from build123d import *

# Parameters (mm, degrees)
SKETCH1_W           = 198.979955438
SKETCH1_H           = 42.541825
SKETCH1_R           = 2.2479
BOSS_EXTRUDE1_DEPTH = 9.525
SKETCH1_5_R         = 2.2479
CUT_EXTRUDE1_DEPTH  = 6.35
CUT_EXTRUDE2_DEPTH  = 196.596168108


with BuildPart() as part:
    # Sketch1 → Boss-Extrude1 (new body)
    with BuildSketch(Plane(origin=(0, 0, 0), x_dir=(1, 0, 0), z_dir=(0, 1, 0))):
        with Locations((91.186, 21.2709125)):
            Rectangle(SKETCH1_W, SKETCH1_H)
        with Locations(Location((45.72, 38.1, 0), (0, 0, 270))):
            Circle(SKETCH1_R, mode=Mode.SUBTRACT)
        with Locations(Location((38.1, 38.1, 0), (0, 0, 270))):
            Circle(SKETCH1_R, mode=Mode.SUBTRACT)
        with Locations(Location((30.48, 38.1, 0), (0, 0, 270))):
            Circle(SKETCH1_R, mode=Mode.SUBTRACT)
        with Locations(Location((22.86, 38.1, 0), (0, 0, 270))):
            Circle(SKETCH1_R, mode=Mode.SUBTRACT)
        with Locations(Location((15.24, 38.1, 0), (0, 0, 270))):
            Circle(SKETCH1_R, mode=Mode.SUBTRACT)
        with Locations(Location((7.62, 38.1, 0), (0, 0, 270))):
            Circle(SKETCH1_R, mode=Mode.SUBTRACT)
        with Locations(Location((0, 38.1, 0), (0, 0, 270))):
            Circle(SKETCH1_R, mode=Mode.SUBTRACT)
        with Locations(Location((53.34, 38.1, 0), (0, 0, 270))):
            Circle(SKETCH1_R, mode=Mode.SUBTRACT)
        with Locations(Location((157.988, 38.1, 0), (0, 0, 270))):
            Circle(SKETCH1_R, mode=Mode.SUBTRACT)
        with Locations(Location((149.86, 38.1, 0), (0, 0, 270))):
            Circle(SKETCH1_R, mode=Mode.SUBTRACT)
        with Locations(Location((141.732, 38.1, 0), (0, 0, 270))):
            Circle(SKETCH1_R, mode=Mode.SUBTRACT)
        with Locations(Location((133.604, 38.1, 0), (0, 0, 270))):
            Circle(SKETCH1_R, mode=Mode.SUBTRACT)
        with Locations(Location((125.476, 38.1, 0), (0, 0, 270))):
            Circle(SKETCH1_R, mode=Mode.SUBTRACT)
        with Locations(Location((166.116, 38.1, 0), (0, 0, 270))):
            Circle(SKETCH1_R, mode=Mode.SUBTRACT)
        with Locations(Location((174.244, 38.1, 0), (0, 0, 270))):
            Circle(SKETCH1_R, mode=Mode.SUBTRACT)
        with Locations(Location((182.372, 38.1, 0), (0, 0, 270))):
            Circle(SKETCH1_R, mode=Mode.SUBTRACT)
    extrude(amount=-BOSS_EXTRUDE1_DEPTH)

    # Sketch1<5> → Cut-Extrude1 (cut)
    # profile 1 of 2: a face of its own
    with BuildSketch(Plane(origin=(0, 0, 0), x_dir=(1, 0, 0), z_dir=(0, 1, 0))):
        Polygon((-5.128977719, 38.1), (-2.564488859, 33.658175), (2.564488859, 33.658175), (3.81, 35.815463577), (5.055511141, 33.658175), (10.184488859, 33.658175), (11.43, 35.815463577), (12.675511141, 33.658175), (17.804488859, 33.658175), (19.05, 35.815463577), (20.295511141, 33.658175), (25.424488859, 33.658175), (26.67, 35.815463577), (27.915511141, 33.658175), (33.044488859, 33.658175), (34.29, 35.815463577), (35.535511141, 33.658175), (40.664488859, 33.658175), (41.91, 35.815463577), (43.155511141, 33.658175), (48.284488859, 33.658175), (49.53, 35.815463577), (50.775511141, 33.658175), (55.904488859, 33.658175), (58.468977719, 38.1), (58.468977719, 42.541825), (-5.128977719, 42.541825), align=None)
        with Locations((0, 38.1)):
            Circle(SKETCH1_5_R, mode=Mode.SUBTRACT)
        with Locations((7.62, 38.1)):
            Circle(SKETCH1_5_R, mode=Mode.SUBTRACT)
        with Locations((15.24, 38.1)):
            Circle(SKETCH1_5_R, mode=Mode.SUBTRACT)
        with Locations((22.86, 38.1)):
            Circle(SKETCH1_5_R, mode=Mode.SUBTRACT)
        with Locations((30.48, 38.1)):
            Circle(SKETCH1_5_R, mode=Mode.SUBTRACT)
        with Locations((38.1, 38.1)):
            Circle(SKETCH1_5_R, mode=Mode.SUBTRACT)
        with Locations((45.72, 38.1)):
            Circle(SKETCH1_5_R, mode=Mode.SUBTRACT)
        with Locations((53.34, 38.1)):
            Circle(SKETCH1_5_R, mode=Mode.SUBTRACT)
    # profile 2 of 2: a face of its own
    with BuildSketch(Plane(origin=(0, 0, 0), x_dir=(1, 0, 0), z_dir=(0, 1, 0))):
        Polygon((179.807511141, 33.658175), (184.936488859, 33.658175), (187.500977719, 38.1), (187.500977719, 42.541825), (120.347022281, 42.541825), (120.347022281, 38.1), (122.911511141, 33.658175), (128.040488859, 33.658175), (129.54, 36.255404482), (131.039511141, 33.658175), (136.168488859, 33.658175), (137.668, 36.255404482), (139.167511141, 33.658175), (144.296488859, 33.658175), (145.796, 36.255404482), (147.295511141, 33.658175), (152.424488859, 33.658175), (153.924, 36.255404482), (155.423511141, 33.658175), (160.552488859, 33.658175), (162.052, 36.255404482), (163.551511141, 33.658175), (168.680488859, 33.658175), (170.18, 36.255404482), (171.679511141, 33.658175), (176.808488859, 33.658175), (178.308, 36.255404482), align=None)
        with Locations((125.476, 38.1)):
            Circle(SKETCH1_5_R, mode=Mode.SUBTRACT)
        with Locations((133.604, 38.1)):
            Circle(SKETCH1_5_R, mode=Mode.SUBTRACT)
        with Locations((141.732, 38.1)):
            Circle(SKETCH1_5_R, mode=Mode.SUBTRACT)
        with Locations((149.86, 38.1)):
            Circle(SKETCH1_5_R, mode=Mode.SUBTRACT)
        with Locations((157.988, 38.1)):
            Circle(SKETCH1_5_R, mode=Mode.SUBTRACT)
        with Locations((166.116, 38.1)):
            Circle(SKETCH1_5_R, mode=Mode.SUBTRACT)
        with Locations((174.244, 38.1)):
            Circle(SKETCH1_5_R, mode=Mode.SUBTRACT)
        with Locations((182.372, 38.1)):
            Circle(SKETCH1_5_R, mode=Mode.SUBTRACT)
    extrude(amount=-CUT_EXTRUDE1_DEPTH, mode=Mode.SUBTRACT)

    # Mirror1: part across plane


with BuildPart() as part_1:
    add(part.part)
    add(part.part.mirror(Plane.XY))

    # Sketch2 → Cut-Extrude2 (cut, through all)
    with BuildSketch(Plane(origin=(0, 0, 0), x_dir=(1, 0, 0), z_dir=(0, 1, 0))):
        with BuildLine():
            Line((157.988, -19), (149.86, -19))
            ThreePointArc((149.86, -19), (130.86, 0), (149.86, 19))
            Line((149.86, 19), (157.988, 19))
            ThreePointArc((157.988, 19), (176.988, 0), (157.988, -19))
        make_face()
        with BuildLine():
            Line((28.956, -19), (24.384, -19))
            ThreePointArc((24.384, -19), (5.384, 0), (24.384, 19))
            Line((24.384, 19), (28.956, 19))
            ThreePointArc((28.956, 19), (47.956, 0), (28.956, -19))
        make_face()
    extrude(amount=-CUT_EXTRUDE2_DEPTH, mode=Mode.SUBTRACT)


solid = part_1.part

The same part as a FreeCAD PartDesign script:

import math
import FreeCAD as App
import Part
import Sketcher

V = App.Vector
Q = App.Units.Quantity


def add_polygon(sketch, points):
    """Adds a closed chain of lines whose ends are joined by coincident constraints."""
    first, n = sketch.GeometryCount, len(points)
    for a, b in zip(points, points[1:] + points[:1]):
        sketch.addGeometry(Part.LineSegment(App.Vector(*a, 0), App.Vector(*b, 0)), False)
    for i in range(n):
        sketch.addConstraint(Sketcher.Constraint("Coincident", first + i, 2, first + (i + 1) % n, 1))

doc = App.newDocument("Part")
body = doc.addObject("PartDesign::Body", "Body")

# Sketch on XZ plane
sketch1 = body.newObject("Sketcher::SketchObject", "Sketch")
sketch1.AttachmentSupport = (doc.getObject("XZ_Plane"), [""])
sketch1.MapMode = "FlatFace"
add_polygon(sketch1, [(-8.3, -42.5), (-8.3, 0), (190.7, 0), (190.7, -42.5)])  # lines 0-3
sketch1.addGeometry(Part.Circle(V(0, -38.1, 0), V(0, 0, 1), 2.2), False)  # 4
sketch1.addGeometry(Part.Circle(V(7.6, -38.1, 0), V(0, 0, 1), 2.2), False)  # 5
sketch1.addGeometry(Part.Circle(V(15.2, -38.1, 0), V(0, 0, 1), 2.2), False)  # 6
sketch1.addGeometry(Part.Circle(V(22.9, -38.1, 0), V(0, 0, 1), 2.2), False)  # 7
sketch1.addGeometry(Part.Circle(V(30.5, -38.1, 0), V(0, 0, 1), 2.2), False)  # 8
sketch1.addGeometry(Part.Circle(V(38.1, -38.1, 0), V(0, 0, 1), 2.2), False)  # 9
sketch1.addGeometry(Part.Circle(V(45.7, -38.1, 0), V(0, 0, 1), 2.2), False)  # 10
sketch1.addGeometry(Part.Circle(V(53.3, -38.1, 0), V(0, 0, 1), 2.2), False)  # 11
sketch1.addGeometry(Part.Circle(V(125.5, -38.1, 0), V(0, 0, 1), 2.2), False)  # 12
sketch1.addGeometry(Part.Circle(V(133.6, -38.1, 0), V(0, 0, 1), 2.2), False)  # 13
sketch1.addGeometry(Part.Circle(V(141.7, -38.1, 0), V(0, 0, 1), 2.2), False)  # 14
sketch1.addGeometry(Part.Circle(V(149.9, -38.1, 0), V(0, 0, 1), 2.2), False)  # 15
sketch1.addGeometry(Part.Circle(V(158, -38.1, 0), V(0, 0, 1), 2.2), False)  # 16
sketch1.addGeometry(Part.Circle(V(166.1, -38.1, 0), V(0, 0, 1), 2.2), False)  # 17
sketch1.addGeometry(Part.Circle(V(174.2, -38.1, 0), V(0, 0, 1), 2.2), False)  # 18
sketch1.addGeometry(Part.Circle(V(182.4, -38.1, 0), V(0, 0, 1), 2.2), False)  # 19
sketch1.addConstraint([
    Sketcher.Constraint("Vertical", 0),
    Sketcher.Constraint("Horizontal", 1),
    Sketcher.Constraint("Vertical", 2),
    Sketcher.Constraint("Horizontal", 3),
    Sketcher.Constraint("Equal", 4, 5),
    Sketcher.Constraint("Equal", 5, 6),
    Sketcher.Constraint("Equal", 6, 7),
    Sketcher.Constraint("Equal", 7, 8),
    Sketcher.Constraint("Equal", 8, 9),
    Sketcher.Constraint("Equal", 9, 10),
    Sketcher.Constraint("Equal", 10, 11),
    Sketcher.Constraint("Equal", 11, 12),
    Sketcher.Constraint("Equal", 12, 13),
    Sketcher.Constraint("Equal", 13, 14),
    Sketcher.Constraint("Equal", 14, 15),
    Sketcher.Constraint("Equal", 15, 16),
    Sketcher.Constraint("Equal", 16, 17),
    Sketcher.Constraint("Equal", 17, 18),
    Sketcher.Constraint("Equal", 18, 19),
    Sketcher.Constraint("PointOnObject", 4, 3, -2),
    Sketcher.Constraint("PointOnObject", 0, 2, -1),
    Sketcher.Constraint("Horizontal", 4, 3, 5, 3),
    Sketcher.Constraint("Horizontal", 5, 3, 6, 3),
    Sketcher.Constraint("Horizontal", 6, 3, 7, 3),
    Sketcher.Constraint("Horizontal", 7, 3, 8, 3),
    Sketcher.Constraint("Horizontal", 8, 3, 9, 3),
    Sketcher.Constraint("Horizontal", 9, 3, 10, 3),
    Sketcher.Constraint("Horizontal", 10, 3, 11, 3),
    Sketcher.Constraint("Horizontal", 11, 3, 12, 3),
    Sketcher.Constraint("Horizontal", 12, 3, 13, 3),
    Sketcher.Constraint("Horizontal", 13, 3, 14, 3),
    Sketcher.Constraint("Horizontal", 14, 3, 15, 3),
    Sketcher.Constraint("Horizontal", 15, 3, 16, 3),
    Sketcher.Constraint("Horizontal", 16, 3, 17, 3),
    Sketcher.Constraint("Horizontal", 17, 3, 18, 3),
    Sketcher.Constraint("Horizontal", 18, 3, 19, 3),
    Sketcher.Constraint("Diameter", 4, Q("0.177 in")),
    Sketcher.Constraint("DistanceY", 4, 3, -1, 1, Q("1.5 in")),
    Sketcher.Constraint("DistanceX", -1, 1, 5, 3, Q("0.3 in")),
    Sketcher.Constraint("DistanceX", -1, 1, 6, 3, Q("0.6 in")),
    Sketcher.Constraint("DistanceX", -1, 1, 7, 3, Q("0.9 in")),
    Sketcher.Constraint("DistanceX", -1, 1, 8, 3, Q("1.2 in")),
    Sketcher.Constraint("DistanceX", -1, 1, 9, 3, Q("1.5 in")),
    Sketcher.Constraint("DistanceX", -1, 1, 10, 3, Q("1.8 in")),
    Sketcher.Constraint("DistanceX", -1, 1, 11, 3, Q("2.1 in")),
    Sketcher.Constraint("DistanceX", -1, 1, 15, 3, Q("5.9 in")),
    Sketcher.Constraint("DistanceX", 12, 3, 17, 3, Q("1.6 in")),
    Sketcher.Constraint("DistanceX", 13, 3, 18, 3, Q("1.6 in")),
    Sketcher.Constraint("DistanceX", 14, 3, 19, 3, Q("1.6 in")),
    Sketcher.Constraint("DistanceX", -1, 1, 12, 3, Q("4.94 in")),
    Sketcher.Constraint("DistanceX", -1, 1, 13, 3, Q("5.26 in")),
    Sketcher.Constraint("DistanceX", -1, 1, 14, 3, Q("5.58 in")),
    Sketcher.Constraint("DistanceX", -1, 1, 16, 3, Q("6.22 in")),
    Sketcher.Constraint("DistanceX", 1, 1, 1, 2, 198.979955),
    Sketcher.Constraint("DistanceY", 0, 1, 0, 2, 42.541825),
    Sketcher.Constraint("DistanceX", 0, 2, -1, 1, 8.303978),
])
pad1 = body.newObject("PartDesign::Pad", "Pad")
pad1.Profile = sketch1
pad1.Length = Q("0.375 in")

# Sketch on XZ plane
sketch2 = body.newObject("Sketcher::SketchObject", "Sketch001")
sketch2.AttachmentSupport = (doc.getObject("XZ_Plane"), [""])
sketch2.MapMode = "FlatFace"
add_polygon(sketch2, [(-5.1, -38.1), (-2.6, -33.7), (2.6, -33.7), (3.8, -35.8), (5.1, -33.7), (10.2, -33.7), (11.4, -35.8), (12.7, -33.7), (17.8, -33.7), (19.1, -35.8), (20.3, -33.7), (25.4, -33.7), (26.7, -35.8), (27.9, -33.7), (33, -33.7), (34.3, -35.8), (35.5, -33.7), (40.7, -33.7), (41.9, -35.8), (43.2, -33.7), (48.3, -33.7), (49.5, -35.8), (50.8, -33.7), (55.9, -33.7), (58.5, -38.1), (58.5, -42.5), (-5.1, -42.5)])  # lines 0-26
sketch2.addGeometry(Part.Circle(V(0, -38.1, 0), V(0, 0, 1), 2.2), False)  # 27
sketch2.addGeometry(Part.Circle(V(7.6, -38.1, 0), V(0, 0, 1), 2.2), False)  # 28
sketch2.addGeometry(Part.Circle(V(15.2, -38.1, 0), V(0, 0, 1), 2.2), False)  # 29
sketch2.addGeometry(Part.Circle(V(22.9, -38.1, 0), V(0, 0, 1), 2.2), False)  # 30
sketch2.addGeometry(Part.Circle(V(30.5, -38.1, 0), V(0, 0, 1), 2.2), False)  # 31
sketch2.addGeometry(Part.Circle(V(38.1, -38.1, 0), V(0, 0, 1), 2.2), False)  # 32
sketch2.addGeometry(Part.Circle(V(45.7, -38.1, 0), V(0, 0, 1), 2.2), False)  # 33
sketch2.addGeometry(Part.Circle(V(53.3, -38.1, 0), V(0, 0, 1), 2.2), False)  # 34
add_polygon(sketch2, [(179.8, -33.7), (184.9, -33.7), (187.5, -38.1), (187.5, -42.5), (120.3, -42.5), (120.3, -38.1), (122.9, -33.7), (128, -33.7), (129.5, -36.3), (131, -33.7), (136.2, -33.7), (137.7, -36.3), (139.2, -33.7), (144.3, -33.7), (145.8, -36.3), (147.3, -33.7), (152.4, -33.7), (153.9, -36.3), (155.4, -33.7), (160.6, -33.7), (162.1, -36.3), (163.6, -33.7), (168.7, -33.7), (170.2, -36.3), (171.7, -33.7), (176.8, -33.7), (178.3, -36.3)])  # lines 35-61
sketch2.addGeometry(Part.Circle(V(125.5, -38.1, 0), V(0, 0, 1), 2.2), False)  # 62
sketch2.addGeometry(Part.Circle(V(133.6, -38.1, 0), V(0, 0, 1), 2.2), False)  # 63
sketch2.addGeometry(Part.Circle(V(141.7, -38.1, 0), V(0, 0, 1), 2.2), False)  # 64
sketch2.addGeometry(Part.Circle(V(149.9, -38.1, 0), V(0, 0, 1), 2.2), False)  # 65
sketch2.addGeometry(Part.Circle(V(158, -38.1, 0), V(0, 0, 1), 2.2), False)  # 66
sketch2.addGeometry(Part.Circle(V(166.1, -38.1, 0), V(0, 0, 1), 2.2), False)  # 67
sketch2.addGeometry(Part.Circle(V(174.2, -38.1, 0), V(0, 0, 1), 2.2), False)  # 68
sketch2.addGeometry(Part.Circle(V(182.4, -38.1, 0), V(0, 0, 1), 2.2), False)  # 69
sketch2.addConstraint([
    Sketcher.Constraint("Horizontal", 1),
    Sketcher.Constraint("Horizontal", 4),
    Sketcher.Constraint("Horizontal", 7),
    Sketcher.Constraint("Horizontal", 10),
    Sketcher.Constraint("Horizontal", 13),
    Sketcher.Constraint("Horizontal", 16),
    Sketcher.Constraint("Horizontal", 19),
    Sketcher.Constraint("Horizontal", 22),
    Sketcher.Constraint("Vertical", 24),
    Sketcher.Constraint("Horizontal", 25),
    Sketcher.Constraint("Vertical", 26),
    Sketcher.Constraint("Horizontal", 35),
    Sketcher.Constraint("Vertical", 37),
    Sketcher.Constraint("Horizontal", 38),
    Sketcher.Constraint("Vertical", 39),
    Sketcher.Constraint("Horizontal", 41),
    Sketcher.Constraint("Horizontal", 44),
    Sketcher.Constraint("Horizontal", 47),
    Sketcher.Constraint("Horizontal", 50),
    Sketcher.Constraint("Horizontal", 53),
    Sketcher.Constraint("Horizontal", 56),
    Sketcher.Constraint("Horizontal", 59),
    Sketcher.Constraint("Equal", 27, 28),
    Sketcher.Constraint("Equal", 28, 29),
    Sketcher.Constraint("Equal", 29, 30),
    Sketcher.Constraint("Equal", 30, 31),
    Sketcher.Constraint("Equal", 31, 32),
    Sketcher.Constraint("Equal", 32, 33),
    Sketcher.Constraint("Equal", 33, 34),
    Sketcher.Constraint("Equal", 34, 62),
    Sketcher.Constraint("Equal", 62, 63),
    Sketcher.Constraint("Equal", 63, 64),
    Sketcher.Constraint("Equal", 64, 65),
    Sketcher.Constraint("Equal", 65, 66),
    Sketcher.Constraint("Equal", 66, 67),
    Sketcher.Constraint("Equal", 67, 68),
    Sketcher.Constraint("Equal", 68, 69),
    Sketcher.Constraint("PointOnObject", 27, 3, -2),
    Sketcher.Constraint("Parallel", 0, 3),
    Sketcher.Constraint("Parallel", 2, 5),
    Sketcher.Constraint("Parallel", 3, 6),
    Sketcher.Constraint("Parallel", 5, 8),
    Sketcher.Constraint("Parallel", 6, 9),
    Sketcher.Constraint("Parallel", 8, 11),
    Sketcher.Constraint("Parallel", 9, 12),
    Sketcher.Constraint("Parallel", 11, 14),
    Sketcher.Constraint("Parallel", 12, 15),
    Sketcher.Constraint("Parallel", 14, 17),
    Sketcher.Constraint("Parallel", 15, 18),
    Sketcher.Constraint("Parallel", 17, 20),
    Sketcher.Constraint("Parallel", 18, 21),
    Sketcher.Constraint("Parallel", 20, 23),
    Sketcher.Constraint("Parallel", 23, 36),
    Sketcher.Constraint("Parallel", 21, 40),
    Sketcher.Constraint("Parallel", 36, 42),
    Sketcher.Constraint("Parallel", 40, 43),
    Sketcher.Constraint("Parallel", 42, 45),
    Sketcher.Constraint("Parallel", 43, 46),
    Sketcher.Constraint("Parallel", 45, 48),
    Sketcher.Constraint("Parallel", 46, 49),
    Sketcher.Constraint("Parallel", 48, 51),
    Sketcher.Constraint("Parallel", 49, 52),
    Sketcher.Constraint("Parallel", 51, 54),
    Sketcher.Constraint("Parallel", 52, 55),
    Sketcher.Constraint("Parallel", 54, 57),
    Sketcher.Constraint("Parallel", 55, 58),
    Sketcher.Constraint("Parallel", 57, 60),
    Sketcher.Constraint("Parallel", 58, 61),
    Sketcher.Constraint("Horizontal", 27, 3, 28, 3),
    Sketcher.Constraint("Horizontal", 28, 3, 29, 3),
    Sketcher.Constraint("Horizontal", 29, 3, 30, 3),
    Sketcher.Constraint("Horizontal", 30, 3, 31, 3),
    Sketcher.Constraint("Horizontal", 31, 3, 32, 3),
    Sketcher.Constraint("Horizontal", 32, 3, 33, 3),
    Sketcher.Constraint("Horizontal", 33, 3, 34, 3),
    Sketcher.Constraint("Horizontal", 34, 3, 62, 3),
    Sketcher.Constraint("Horizontal", 62, 3, 63, 3),
    Sketcher.Constraint("Horizontal", 63, 3, 64, 3),
    Sketcher.Constraint("Horizontal", 64, 3, 65, 3),
    Sketcher.Constraint("Horizontal", 65, 3, 66, 3),
    Sketcher.Constraint("Horizontal", 66, 3, 67, 3),
    Sketcher.Constraint("Horizontal", 67, 3, 68, 3),
    Sketcher.Constraint("Horizontal", 68, 3, 69, 3),
    Sketcher.Constraint("Horizontal", 1, 2, 3, 2),
    Sketcher.Constraint("Horizontal", 2, 2, 5, 2),
    Sketcher.Constraint("Horizontal", 4, 2, 6, 2),
    Sketcher.Constraint("Horizontal", 5, 2, 8, 2),
    Sketcher.Constraint("Horizontal", 7, 2, 9, 2),
    Sketcher.Constraint("Horizontal", 8, 2, 11, 2),
    Sketcher.Constraint("Horizontal", 10, 2, 12, 2),
    Sketcher.Constraint("Horizontal", 11, 2, 14, 2),
    Sketcher.Constraint("Horizontal", 13, 2, 15, 2),
    Sketcher.Constraint("Horizontal", 14, 2, 17, 2),
    Sketcher.Constraint("Horizontal", 16, 2, 18, 2),
    Sketcher.Constraint("Horizontal", 17, 2, 20, 2),
    Sketcher.Constraint("Horizontal", 19, 2, 21, 2),
    Sketcher.Constraint("Horizontal", 69, 3, 23, 2),
    Sketcher.Constraint("Horizontal", 23, 2, 26, 2),
    Sketcher.Constraint("Horizontal", 22, 2, 35, 2),
    Sketcher.Constraint("Horizontal", 26, 2, 36, 2),
    Sketcher.Constraint("Horizontal", 25, 2, 37, 2),
    Sketcher.Constraint("Horizontal", 36, 2, 39, 2),
    Sketcher.Constraint("Horizontal", 35, 2, 40, 2),
    Sketcher.Constraint("Horizontal", 41, 2, 43, 2),
    Sketcher.Constraint("Horizontal", 42, 2, 45, 2),
    Sketcher.Constraint("Horizontal", 44, 2, 46, 2),
    Sketcher.Constraint("Horizontal", 45, 2, 48, 2),
    Sketcher.Constraint("Horizontal", 47, 2, 49, 2),
    Sketcher.Constraint("Horizontal", 48, 2, 51, 2),
    Sketcher.Constraint("Horizontal", 50, 2, 52, 2),
    Sketcher.Constraint("Horizontal", 51, 2, 54, 2),
    Sketcher.Constraint("Horizontal", 53, 2, 55, 2),
    Sketcher.Constraint("Horizontal", 54, 2, 57, 2),
    Sketcher.Constraint("Horizontal", 56, 2, 58, 2),
    Sketcher.Constraint("Horizontal", 57, 2, 60, 2),
    Sketcher.Constraint("Equal", 1, 4),
    Sketcher.Constraint("Equal", 4, 7),
    Sketcher.Constraint("Equal", 7, 10),
    Sketcher.Constraint("Equal", 10, 13),
    Sketcher.Constraint("Equal", 13, 16),
    Sketcher.Constraint("Equal", 16, 19),
    Sketcher.Constraint("Equal", 19, 22),
    Sketcher.Constraint("Equal", 22, 35),
    Sketcher.Constraint("Equal", 35, 41),
    Sketcher.Constraint("Equal", 41, 44),
    Sketcher.Constraint("Equal", 44, 47),
    Sketcher.Constraint("Equal", 47, 50),
    Sketcher.Constraint("Equal", 50, 53),
    Sketcher.Constraint("Equal", 53, 56),
    Sketcher.Constraint("Equal", 56, 59),
    Sketcher.Constraint("Equal", 2, 3),
    Sketcher.Constraint("Diameter", 27, Q("0.177 in")),
    Sketcher.Constraint("Angle", 0, Q("60 deg")),
    Sketcher.Constraint("DistanceY", 27, 3, -1, 1, Q("1.5 in")),
    Sketcher.Constraint("DistanceX", -1, 1, 28, 3, Q("0.3 in")),
    Sketcher.Constraint("DistanceX", -1, 1, 29, 3, Q("0.6 in")),
    Sketcher.Constraint("DistanceX", -1, 1, 30, 3, Q("0.9 in")),
    Sketcher.Constraint("DistanceX", -1, 1, 31, 3, Q("1.2 in")),
    Sketcher.Constraint("DistanceX", -1, 1, 32, 3, Q("1.5 in")),
    Sketcher.Constraint("DistanceX", -1, 1, 33, 3, Q("1.8 in")),
    Sketcher.Constraint("DistanceX", -1, 1, 34, 3, Q("2.1 in")),
    Sketcher.Constraint("DistanceX", -1, 1, 65, 3, Q("5.9 in")),
    Sketcher.Constraint("DistanceX", -1, 1, 42, 2, Q("5.1 in")),
    Sketcher.Constraint("DistanceX", -1, 1, 57, 2, Q("6.7 in")),
    Sketcher.Constraint("DistanceX", -1, 1, 62, 3, Q("4.94 in")),
    Sketcher.Constraint("DistanceX", -1, 1, 63, 3, Q("5.26 in")),
    Sketcher.Constraint("DistanceX", -1, 1, 64, 3, Q("5.58 in")),
    Sketcher.Constraint("DistanceX", -1, 1, 66, 3, Q("6.22 in")),
    Sketcher.Constraint("DistanceX", -1, 1, 67, 3, Q("6.54 in")),
    Sketcher.Constraint("DistanceX", -1, 1, 68, 3, Q("6.86 in")),
    Sketcher.Constraint("DistanceX", -1, 1, 69, 3, Q("7.18 in")),
    Sketcher.Constraint("DistanceX", -1, 1, 2, 2, Q("0.15 in")),
    Sketcher.Constraint("DistanceX", -1, 1, 5, 2, Q("0.45 in")),
    Sketcher.Constraint("DistanceX", 1, 1, 1, 2, 5.128978),
    Sketcher.Constraint("DistanceX", 25, 2, 25, 1, 63.597955),
    Sketcher.Constraint("DistanceY", 24, 2, 24, 1, 4.441825),
])
pocket1 = body.newObject("PartDesign::Pocket", "Pocket")
pocket1.Profile = sketch2
pocket1.Length = Q("0.25 in")
pocket1.Reversed = True
body2 = doc.addObject("PartDesign::Body", "Body001")
doc.recompute()

body2.BaseFeature = body
doc.recompute()

mirroring = doc.addObject("Part::Mirroring", "Mirroring")
mirroring.Source = body
mirroring.Base = V(0, 0, 0)
mirroring.Normal = V(0, 0, 1)
body3 = doc.addObject("PartDesign::Body", "Body002")
body3.BaseFeature = mirroring
boolean = body2.newObject("PartDesign::Boolean", "Boolean")
boolean.Type = "Fuse"
boolean.addObjects([body3])
doc.recompute()

# Sketch on XZ plane
sketch3 = body2.newObject("Sketcher::SketchObject", "Sketch002")
sketch3.AttachmentSupport = (doc.getObject("XZ_Plane001"), [""])
sketch3.MapMode = "FlatFace"
sketch3.addGeometry([
    Part.LineSegment(V(149.9, 19, 0), V(158, 19, 0)),  # 0
    Part.ArcOfCircle(Part.Circle(V(158, 0, 0), V(0, 0, 1), 19), math.radians(-90), math.radians(90)),  # 1
    Part.LineSegment(V(158, -19, 0), V(149.9, -19, 0)),  # 2
    Part.ArcOfCircle(Part.Circle(V(149.9, 0, 0), V(0, 0, 1), 19), math.radians(90), math.radians(270)),  # 3
    Part.LineSegment(V(24.4, 19, 0), V(29, 19, 0)),  # 4
    Part.ArcOfCircle(Part.Circle(V(29, 0, 0), V(0, 0, 1), 19), math.radians(-90), math.radians(90)),  # 5
    Part.LineSegment(V(29, -19, 0), V(24.4, -19, 0)),  # 6
    Part.ArcOfCircle(Part.Circle(V(24.4, 0, 0), V(0, 0, 1), 19), math.radians(90), math.radians(270)),  # 7
], False)
sketch3.addConstraint([
    Sketcher.Constraint("Tangent", 0, 2, 1, 2),
    Sketcher.Constraint("Tangent", 1, 1, 2, 1),
    Sketcher.Constraint("Tangent", 2, 2, 3, 2),
    Sketcher.Constraint("Tangent", 3, 1, 0, 1),
    Sketcher.Constraint("Tangent", 4, 2, 5, 2),
    Sketcher.Constraint("Tangent", 5, 1, 6, 1),
    Sketcher.Constraint("Tangent", 6, 2, 7, 2),
    Sketcher.Constraint("Tangent", 7, 1, 4, 1),
    Sketcher.Constraint("Horizontal", 0),
    Sketcher.Constraint("Horizontal", 2),
    Sketcher.Constraint("Horizontal", 4),
    Sketcher.Constraint("Horizontal", 6),
    Sketcher.Constraint("Equal", 3, 5),
    Sketcher.Constraint("PointOnObject", 1, 3, -1),
    Sketcher.Constraint("PointOnObject", 5, 3, -1),
    Sketcher.Constraint("DistanceX", 0, 1, 0, 2, Q("0.32 in")),
    Sketcher.Constraint("DistanceX", 4, 1, 4, 2, Q("0.18 in")),
    Sketcher.Constraint("DistanceX", -1, 1, 3, 3, Q("5.9 in")),
    Sketcher.Constraint("DistanceX", -1, 1, 5, 3, Q("1.14 in")),
    Sketcher.Constraint("Radius", 1, 19.0),
])
pocket2 = body2.newObject("PartDesign::Pocket", "Pocket001")
pocket2.Profile = sketch3
pocket2.Type = "ThroughAll"
pocket2.Reversed = True
mirroring.Visibility = False

doc.recompute()
